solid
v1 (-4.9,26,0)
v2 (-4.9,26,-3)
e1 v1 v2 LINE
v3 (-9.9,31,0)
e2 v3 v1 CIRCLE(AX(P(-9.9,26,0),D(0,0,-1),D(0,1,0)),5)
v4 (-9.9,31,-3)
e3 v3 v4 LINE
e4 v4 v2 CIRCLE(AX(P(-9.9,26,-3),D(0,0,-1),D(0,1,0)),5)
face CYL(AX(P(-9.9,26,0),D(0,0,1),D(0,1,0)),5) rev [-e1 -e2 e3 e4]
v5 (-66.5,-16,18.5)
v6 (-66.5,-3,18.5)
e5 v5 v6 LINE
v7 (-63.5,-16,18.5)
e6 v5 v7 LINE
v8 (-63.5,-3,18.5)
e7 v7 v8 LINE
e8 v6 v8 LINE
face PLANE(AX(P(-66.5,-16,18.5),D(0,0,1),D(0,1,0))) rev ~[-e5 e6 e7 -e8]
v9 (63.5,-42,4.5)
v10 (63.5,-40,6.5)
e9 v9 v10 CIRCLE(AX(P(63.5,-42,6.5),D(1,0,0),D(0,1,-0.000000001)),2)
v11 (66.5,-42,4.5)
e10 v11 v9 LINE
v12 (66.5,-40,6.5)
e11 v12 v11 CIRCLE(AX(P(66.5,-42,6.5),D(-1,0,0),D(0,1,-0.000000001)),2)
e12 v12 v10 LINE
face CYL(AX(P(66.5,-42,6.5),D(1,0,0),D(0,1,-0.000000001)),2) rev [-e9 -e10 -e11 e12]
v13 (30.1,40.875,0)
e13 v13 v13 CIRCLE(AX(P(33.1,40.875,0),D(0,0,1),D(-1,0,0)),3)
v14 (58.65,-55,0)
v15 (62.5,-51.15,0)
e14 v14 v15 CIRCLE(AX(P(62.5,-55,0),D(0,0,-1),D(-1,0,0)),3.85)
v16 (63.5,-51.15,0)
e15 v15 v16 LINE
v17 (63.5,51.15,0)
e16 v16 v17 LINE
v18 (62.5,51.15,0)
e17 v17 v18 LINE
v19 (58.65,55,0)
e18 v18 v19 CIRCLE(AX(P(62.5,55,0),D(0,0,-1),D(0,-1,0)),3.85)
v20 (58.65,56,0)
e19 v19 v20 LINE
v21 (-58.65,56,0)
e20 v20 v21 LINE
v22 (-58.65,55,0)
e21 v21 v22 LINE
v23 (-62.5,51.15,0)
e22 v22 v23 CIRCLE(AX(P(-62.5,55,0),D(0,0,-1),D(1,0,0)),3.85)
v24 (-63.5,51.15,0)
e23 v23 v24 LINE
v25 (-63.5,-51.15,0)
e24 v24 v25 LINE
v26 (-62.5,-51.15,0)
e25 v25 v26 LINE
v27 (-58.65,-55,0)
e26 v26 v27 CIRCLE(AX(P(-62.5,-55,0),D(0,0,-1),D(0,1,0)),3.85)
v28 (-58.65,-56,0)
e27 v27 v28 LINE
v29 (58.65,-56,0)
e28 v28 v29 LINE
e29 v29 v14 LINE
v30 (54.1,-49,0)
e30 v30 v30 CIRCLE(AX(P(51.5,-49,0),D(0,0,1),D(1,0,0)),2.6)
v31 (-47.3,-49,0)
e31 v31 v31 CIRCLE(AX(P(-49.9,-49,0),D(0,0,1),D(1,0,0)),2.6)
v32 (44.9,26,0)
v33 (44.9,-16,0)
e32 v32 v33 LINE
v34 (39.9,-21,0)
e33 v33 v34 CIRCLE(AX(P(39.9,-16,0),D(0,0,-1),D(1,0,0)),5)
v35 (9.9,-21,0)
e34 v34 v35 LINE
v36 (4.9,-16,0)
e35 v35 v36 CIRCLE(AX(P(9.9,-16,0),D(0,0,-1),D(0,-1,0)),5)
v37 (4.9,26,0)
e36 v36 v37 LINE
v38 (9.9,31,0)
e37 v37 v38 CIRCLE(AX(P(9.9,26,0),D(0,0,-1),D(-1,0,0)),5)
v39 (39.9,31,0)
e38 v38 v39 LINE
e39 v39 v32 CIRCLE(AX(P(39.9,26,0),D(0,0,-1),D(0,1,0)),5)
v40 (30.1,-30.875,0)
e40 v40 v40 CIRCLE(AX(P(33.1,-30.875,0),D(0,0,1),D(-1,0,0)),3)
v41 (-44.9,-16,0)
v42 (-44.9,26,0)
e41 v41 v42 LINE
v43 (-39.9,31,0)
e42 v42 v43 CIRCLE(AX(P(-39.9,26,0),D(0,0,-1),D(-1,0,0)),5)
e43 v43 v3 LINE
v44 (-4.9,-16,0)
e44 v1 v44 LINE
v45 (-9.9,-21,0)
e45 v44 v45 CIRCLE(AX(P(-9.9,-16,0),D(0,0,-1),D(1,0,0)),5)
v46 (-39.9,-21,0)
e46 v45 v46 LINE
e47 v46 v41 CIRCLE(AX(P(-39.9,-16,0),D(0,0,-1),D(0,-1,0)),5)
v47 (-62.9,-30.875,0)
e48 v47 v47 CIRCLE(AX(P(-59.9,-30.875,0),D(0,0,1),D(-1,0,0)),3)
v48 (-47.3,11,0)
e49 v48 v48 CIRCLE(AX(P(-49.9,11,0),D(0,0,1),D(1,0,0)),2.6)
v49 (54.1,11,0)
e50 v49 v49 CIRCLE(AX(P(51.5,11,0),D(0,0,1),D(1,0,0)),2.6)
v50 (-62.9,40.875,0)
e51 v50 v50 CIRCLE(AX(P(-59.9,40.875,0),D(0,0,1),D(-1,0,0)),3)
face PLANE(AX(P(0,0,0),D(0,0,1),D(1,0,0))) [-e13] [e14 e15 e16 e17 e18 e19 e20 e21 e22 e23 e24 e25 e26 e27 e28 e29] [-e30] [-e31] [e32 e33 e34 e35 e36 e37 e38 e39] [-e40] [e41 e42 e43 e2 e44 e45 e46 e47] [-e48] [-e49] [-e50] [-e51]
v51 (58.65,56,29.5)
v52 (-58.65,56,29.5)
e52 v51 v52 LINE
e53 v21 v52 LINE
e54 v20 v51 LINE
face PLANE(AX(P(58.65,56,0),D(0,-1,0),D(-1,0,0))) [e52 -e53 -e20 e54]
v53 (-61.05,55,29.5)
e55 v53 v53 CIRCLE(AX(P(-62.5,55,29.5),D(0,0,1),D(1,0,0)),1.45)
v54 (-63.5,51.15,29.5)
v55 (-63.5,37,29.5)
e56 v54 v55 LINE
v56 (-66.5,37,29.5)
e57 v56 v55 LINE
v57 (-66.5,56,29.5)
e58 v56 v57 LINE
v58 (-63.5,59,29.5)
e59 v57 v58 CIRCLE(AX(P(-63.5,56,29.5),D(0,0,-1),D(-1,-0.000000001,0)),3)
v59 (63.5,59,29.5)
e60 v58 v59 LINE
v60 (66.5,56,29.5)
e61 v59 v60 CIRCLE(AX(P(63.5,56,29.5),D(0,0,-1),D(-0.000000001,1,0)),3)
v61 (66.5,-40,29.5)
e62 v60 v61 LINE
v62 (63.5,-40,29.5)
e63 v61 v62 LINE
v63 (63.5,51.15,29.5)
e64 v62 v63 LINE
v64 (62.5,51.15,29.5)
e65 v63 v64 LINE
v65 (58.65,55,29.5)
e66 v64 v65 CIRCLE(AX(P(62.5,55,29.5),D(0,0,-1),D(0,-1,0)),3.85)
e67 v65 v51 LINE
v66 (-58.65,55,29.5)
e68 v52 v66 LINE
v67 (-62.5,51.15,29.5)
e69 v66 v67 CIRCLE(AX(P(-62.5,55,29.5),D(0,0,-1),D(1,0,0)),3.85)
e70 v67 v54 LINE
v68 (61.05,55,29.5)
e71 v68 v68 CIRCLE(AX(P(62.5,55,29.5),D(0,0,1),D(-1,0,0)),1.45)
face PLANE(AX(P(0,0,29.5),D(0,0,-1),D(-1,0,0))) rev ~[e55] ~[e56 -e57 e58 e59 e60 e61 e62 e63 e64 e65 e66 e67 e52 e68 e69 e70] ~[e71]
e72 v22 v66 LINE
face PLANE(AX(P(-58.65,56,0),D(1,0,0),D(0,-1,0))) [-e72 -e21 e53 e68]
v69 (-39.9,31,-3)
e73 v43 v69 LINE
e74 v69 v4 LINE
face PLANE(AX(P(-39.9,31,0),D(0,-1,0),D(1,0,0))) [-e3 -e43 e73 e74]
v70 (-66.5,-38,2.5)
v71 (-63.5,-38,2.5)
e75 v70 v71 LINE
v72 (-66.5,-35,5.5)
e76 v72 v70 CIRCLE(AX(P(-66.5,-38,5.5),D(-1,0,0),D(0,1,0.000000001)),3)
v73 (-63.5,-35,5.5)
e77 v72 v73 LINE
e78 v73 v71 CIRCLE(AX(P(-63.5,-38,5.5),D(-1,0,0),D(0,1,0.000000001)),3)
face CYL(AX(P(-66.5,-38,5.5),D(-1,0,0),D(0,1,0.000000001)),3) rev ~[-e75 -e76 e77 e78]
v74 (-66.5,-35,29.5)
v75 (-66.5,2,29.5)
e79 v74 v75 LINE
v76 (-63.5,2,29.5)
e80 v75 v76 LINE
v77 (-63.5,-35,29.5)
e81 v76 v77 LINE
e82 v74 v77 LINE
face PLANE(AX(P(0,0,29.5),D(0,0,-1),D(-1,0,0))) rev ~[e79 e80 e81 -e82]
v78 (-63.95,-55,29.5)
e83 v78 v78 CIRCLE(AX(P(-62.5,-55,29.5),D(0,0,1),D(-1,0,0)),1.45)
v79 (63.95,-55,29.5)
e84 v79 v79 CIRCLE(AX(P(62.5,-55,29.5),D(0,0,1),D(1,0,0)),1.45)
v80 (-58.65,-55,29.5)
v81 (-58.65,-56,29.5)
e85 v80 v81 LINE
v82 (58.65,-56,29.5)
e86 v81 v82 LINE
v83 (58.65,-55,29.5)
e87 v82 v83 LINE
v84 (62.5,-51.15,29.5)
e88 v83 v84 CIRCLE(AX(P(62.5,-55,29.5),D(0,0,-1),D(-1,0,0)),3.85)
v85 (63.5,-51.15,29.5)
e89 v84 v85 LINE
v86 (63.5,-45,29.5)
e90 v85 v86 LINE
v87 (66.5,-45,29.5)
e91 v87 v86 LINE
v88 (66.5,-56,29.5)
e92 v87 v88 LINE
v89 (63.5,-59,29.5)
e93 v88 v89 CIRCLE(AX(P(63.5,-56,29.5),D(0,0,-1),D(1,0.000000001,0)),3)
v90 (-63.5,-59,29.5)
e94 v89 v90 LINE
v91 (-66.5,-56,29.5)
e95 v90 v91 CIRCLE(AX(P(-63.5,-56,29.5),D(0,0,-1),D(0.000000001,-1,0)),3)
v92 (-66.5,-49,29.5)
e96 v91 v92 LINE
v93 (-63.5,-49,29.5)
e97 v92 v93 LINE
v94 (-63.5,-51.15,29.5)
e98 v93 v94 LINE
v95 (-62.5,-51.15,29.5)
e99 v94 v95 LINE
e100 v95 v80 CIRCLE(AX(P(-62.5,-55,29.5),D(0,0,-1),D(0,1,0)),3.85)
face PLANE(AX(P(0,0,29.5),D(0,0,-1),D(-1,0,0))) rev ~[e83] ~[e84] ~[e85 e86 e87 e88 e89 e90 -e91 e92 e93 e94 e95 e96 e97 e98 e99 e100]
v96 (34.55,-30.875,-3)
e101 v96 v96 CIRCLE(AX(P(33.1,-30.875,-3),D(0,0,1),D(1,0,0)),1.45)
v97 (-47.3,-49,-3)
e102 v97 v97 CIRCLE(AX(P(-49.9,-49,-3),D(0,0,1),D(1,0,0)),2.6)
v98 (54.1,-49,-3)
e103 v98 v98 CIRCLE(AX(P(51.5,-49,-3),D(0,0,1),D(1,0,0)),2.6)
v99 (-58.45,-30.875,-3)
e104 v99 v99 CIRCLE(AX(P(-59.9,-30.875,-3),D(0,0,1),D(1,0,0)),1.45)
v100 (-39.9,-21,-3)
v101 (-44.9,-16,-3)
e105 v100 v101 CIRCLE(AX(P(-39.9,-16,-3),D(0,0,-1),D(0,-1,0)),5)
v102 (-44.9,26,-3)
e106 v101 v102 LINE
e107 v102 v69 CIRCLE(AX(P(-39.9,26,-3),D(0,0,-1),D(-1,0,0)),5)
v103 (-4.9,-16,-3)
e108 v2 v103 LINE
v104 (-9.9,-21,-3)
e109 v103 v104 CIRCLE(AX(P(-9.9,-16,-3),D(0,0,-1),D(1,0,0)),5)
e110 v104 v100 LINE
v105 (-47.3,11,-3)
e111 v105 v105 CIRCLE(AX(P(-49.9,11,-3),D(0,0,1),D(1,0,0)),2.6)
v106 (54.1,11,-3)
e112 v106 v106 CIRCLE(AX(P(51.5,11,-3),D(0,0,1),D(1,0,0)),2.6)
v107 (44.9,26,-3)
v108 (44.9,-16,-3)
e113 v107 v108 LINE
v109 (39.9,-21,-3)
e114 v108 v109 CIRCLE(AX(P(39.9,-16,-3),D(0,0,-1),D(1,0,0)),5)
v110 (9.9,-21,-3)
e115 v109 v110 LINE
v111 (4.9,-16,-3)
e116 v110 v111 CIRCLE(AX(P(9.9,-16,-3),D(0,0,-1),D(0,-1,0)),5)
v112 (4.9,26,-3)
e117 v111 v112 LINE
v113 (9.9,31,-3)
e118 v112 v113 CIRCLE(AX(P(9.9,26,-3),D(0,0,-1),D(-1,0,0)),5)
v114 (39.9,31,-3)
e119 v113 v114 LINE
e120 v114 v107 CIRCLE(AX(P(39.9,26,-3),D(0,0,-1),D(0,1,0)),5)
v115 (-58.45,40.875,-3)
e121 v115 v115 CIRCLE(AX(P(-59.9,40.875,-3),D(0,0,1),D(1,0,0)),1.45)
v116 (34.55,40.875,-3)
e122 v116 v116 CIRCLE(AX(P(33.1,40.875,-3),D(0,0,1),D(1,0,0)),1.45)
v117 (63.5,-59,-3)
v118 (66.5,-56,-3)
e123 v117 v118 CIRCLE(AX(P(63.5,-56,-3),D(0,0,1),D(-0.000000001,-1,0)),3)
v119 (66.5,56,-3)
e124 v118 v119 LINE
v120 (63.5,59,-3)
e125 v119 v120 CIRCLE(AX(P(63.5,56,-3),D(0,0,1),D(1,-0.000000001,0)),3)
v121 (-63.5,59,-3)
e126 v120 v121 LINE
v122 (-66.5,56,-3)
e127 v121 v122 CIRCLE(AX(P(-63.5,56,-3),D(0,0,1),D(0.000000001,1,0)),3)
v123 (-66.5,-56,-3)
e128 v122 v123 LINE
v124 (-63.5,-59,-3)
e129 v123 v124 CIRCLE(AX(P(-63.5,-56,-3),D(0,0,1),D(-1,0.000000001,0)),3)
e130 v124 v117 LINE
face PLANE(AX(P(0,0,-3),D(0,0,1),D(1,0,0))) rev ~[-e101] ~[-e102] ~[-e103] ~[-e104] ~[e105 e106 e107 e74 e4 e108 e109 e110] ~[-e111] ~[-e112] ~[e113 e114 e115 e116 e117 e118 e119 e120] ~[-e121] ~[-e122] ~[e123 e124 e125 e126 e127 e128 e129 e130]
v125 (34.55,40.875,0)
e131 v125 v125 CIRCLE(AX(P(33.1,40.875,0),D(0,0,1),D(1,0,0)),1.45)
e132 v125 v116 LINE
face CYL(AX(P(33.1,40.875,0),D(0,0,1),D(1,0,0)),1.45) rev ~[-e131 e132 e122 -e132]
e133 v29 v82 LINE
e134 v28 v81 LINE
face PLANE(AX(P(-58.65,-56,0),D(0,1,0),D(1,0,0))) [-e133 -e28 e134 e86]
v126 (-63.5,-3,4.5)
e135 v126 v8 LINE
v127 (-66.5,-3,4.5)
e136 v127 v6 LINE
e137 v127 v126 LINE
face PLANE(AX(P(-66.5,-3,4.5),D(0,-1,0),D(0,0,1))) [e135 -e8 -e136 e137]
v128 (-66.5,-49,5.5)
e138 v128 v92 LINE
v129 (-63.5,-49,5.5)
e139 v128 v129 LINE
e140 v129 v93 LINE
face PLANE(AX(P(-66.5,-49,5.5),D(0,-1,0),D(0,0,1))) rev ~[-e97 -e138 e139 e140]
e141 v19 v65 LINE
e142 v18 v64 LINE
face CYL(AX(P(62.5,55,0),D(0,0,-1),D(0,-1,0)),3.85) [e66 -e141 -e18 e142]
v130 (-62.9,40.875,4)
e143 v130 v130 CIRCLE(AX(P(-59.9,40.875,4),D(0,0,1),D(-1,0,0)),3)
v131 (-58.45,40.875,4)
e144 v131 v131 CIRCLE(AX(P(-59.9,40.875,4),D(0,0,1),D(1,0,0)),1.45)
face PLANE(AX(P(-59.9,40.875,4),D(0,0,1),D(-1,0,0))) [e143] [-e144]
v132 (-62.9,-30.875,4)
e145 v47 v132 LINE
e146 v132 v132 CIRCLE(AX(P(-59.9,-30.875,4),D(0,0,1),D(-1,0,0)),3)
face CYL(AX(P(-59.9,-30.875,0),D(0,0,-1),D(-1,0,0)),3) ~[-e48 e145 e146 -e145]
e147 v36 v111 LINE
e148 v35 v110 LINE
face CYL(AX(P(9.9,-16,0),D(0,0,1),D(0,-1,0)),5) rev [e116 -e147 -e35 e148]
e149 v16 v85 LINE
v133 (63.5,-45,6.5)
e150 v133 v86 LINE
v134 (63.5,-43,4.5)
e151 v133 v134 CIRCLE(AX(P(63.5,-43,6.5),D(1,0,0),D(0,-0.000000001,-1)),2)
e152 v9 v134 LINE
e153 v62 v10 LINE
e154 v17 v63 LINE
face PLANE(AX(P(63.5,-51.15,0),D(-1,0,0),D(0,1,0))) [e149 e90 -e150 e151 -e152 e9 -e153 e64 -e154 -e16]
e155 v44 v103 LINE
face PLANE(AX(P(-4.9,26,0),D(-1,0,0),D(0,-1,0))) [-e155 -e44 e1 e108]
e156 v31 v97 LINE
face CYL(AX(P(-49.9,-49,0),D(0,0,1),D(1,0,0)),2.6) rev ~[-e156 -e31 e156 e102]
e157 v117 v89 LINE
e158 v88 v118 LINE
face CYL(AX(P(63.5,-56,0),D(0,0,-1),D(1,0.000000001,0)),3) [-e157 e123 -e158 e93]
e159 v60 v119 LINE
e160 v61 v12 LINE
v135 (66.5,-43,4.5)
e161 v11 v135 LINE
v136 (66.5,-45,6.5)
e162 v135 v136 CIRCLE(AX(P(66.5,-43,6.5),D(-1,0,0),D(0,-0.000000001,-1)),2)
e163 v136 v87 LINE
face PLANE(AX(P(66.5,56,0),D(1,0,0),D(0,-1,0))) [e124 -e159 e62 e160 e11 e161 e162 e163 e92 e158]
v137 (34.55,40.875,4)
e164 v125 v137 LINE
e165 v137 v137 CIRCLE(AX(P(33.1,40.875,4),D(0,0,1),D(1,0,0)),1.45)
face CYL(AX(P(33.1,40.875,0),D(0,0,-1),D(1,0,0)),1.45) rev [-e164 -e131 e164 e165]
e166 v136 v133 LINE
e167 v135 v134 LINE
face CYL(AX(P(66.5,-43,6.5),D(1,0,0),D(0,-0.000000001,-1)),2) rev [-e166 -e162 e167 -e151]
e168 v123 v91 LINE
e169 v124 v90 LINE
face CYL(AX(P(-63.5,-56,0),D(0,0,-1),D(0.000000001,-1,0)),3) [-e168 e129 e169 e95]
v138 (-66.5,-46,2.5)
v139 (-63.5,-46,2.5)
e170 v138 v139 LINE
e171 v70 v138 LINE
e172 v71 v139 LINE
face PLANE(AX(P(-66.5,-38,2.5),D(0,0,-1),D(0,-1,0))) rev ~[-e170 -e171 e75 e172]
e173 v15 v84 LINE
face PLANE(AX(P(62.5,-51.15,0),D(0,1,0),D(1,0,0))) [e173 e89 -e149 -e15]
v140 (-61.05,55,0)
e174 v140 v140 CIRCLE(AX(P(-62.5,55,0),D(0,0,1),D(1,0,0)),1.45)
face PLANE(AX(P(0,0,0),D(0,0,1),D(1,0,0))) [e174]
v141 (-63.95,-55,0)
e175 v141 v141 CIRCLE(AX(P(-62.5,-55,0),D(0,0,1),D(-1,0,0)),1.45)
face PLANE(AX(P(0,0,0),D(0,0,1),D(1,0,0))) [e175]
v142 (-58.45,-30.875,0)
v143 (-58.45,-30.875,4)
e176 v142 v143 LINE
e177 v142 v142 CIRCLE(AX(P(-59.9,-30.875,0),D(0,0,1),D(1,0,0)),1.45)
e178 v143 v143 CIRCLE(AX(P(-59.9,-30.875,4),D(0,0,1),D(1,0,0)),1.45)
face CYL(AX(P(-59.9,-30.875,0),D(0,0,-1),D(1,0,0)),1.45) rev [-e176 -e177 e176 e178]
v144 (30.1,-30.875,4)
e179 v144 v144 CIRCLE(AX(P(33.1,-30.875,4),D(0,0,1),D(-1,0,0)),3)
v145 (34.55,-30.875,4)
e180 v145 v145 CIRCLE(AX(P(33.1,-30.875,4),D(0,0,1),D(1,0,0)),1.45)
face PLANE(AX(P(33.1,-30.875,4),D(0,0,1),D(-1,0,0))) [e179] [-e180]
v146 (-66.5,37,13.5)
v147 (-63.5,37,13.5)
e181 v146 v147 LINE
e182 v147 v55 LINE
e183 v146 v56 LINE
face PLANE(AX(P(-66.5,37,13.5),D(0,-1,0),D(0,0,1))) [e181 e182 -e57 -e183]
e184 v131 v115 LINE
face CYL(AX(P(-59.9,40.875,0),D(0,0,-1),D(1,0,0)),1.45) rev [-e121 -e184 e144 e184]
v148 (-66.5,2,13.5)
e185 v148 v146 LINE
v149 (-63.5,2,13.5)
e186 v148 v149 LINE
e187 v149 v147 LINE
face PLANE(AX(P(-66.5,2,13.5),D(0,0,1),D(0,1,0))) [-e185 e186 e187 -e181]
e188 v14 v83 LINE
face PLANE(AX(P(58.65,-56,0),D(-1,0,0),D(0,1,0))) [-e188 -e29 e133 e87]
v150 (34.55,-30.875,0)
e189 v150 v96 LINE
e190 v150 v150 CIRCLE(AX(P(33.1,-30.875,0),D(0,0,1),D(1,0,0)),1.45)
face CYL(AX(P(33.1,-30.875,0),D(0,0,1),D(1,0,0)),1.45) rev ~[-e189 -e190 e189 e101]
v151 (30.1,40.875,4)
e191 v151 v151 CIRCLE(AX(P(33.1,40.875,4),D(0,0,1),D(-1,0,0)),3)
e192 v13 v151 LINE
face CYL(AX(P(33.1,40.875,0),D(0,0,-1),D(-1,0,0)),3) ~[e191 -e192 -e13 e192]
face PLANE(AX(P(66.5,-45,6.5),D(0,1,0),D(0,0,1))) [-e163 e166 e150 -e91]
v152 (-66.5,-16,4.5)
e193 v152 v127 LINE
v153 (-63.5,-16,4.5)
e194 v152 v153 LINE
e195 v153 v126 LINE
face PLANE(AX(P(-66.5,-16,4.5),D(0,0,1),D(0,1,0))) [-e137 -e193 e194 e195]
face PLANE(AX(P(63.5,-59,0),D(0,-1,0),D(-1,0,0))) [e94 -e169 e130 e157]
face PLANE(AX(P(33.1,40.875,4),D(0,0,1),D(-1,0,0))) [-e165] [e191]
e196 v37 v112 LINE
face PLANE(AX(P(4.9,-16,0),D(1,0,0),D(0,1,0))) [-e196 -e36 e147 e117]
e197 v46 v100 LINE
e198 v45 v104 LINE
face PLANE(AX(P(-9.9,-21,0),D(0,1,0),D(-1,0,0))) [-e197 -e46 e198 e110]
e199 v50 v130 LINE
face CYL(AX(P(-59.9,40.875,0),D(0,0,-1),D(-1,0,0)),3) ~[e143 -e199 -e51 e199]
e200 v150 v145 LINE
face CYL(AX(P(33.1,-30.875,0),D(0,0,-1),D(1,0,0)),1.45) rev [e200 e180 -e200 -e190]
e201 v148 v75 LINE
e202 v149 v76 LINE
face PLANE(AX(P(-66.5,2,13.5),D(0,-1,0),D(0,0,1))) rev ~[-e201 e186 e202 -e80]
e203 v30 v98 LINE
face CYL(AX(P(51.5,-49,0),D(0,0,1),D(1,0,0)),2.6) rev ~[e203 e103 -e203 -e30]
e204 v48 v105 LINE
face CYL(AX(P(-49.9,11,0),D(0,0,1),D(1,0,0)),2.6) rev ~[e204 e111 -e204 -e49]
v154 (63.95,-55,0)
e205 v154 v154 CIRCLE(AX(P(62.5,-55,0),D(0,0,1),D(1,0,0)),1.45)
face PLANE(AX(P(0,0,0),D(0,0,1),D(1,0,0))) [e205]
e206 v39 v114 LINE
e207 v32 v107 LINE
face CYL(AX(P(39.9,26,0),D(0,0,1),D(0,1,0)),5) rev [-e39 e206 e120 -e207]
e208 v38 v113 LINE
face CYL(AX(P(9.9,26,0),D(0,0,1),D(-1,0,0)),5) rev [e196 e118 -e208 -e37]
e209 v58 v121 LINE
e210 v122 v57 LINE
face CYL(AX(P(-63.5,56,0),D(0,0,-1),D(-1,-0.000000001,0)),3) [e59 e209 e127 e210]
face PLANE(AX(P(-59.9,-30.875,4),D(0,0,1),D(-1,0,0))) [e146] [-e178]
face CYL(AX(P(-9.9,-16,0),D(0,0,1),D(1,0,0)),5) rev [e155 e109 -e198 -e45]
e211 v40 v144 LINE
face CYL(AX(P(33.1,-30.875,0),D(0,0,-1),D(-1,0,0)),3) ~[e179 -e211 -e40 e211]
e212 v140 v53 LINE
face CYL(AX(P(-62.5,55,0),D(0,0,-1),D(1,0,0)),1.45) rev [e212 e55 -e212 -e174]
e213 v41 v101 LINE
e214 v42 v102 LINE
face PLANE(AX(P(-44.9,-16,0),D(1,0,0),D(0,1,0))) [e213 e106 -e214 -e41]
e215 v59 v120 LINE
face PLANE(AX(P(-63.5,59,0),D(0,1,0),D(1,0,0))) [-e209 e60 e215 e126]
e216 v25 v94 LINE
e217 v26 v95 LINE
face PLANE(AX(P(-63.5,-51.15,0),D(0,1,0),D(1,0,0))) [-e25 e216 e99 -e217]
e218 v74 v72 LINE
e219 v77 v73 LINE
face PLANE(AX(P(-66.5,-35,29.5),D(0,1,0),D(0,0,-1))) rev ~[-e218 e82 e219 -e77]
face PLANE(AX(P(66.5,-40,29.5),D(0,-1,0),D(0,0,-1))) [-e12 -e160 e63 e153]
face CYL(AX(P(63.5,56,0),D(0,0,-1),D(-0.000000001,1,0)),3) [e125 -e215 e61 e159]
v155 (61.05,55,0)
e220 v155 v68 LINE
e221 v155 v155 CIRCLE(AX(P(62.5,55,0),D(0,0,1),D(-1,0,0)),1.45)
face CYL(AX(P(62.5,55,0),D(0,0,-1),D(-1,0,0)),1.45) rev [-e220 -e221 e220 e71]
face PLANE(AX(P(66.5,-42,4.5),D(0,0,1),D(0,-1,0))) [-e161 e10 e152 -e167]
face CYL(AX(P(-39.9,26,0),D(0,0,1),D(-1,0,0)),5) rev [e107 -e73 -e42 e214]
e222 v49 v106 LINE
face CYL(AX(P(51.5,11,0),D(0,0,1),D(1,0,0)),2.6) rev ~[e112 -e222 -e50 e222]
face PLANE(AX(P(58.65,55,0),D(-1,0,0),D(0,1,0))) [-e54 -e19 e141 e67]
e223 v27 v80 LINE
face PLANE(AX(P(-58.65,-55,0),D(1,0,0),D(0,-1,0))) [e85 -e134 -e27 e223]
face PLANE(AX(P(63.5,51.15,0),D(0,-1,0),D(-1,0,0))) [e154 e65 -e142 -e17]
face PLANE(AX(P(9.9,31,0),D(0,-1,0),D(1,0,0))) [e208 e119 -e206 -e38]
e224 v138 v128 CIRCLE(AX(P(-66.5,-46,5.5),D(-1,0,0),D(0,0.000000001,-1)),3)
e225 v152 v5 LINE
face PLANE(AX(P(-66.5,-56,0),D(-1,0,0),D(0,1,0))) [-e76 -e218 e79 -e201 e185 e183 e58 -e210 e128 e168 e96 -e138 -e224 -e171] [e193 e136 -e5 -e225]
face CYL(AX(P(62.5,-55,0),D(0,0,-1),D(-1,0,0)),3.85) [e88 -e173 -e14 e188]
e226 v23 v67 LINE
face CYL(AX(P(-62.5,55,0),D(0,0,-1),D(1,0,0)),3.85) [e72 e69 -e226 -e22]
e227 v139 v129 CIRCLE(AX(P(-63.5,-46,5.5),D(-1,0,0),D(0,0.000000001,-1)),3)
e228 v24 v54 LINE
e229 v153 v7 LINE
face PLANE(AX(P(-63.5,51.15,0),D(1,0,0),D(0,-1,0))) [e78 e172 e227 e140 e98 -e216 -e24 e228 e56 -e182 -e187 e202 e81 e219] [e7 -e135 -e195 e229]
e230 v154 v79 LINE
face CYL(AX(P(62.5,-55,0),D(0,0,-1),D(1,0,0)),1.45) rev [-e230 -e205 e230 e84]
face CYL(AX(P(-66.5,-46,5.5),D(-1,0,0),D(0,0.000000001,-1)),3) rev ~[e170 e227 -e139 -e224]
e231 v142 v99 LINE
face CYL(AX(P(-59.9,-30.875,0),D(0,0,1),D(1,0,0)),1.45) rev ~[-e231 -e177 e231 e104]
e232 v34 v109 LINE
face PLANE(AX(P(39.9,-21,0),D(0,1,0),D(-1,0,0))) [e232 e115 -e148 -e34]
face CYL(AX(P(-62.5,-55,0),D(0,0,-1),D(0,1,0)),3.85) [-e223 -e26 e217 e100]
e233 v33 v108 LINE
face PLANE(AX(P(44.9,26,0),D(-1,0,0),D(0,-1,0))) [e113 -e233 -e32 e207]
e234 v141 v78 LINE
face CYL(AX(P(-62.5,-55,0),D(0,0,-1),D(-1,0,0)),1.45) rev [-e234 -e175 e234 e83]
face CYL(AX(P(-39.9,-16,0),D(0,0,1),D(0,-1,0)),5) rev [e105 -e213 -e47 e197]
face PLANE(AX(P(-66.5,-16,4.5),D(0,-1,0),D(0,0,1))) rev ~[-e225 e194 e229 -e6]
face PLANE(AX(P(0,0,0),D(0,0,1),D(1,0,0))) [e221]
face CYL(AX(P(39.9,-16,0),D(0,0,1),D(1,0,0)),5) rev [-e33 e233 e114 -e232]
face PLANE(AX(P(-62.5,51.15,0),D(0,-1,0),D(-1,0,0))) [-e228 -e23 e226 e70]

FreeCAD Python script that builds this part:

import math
import FreeCAD as App
import Part
import Sketcher
Q = App.Units.Quantity

doc = App.newDocument("Part")
body = doc.addObject("PartDesign::Body", "Body")

# Sketch on XY plane
sketch1 = body.newObject("Sketcher::SketchObject", "Sketch")
sketch1.AttachmentSupport = (doc.getObject("XY_Plane"), [""])
sketch1.MapMode = "FlatFace"
sketch1.addGeometry([
    Part.LineSegment(App.Vector(-63.5, -59, 0), App.Vector(63.5, -59, 0)),  # 0
    Part.ArcOfCircle(Part.Circle(App.Vector(63.5, -56, 0), App.Vector(0, 0, 1), 3), math.radians(-90), math.radians(0)),  # 1
    Part.LineSegment(App.Vector(66.5, -56, 0), App.Vector(66.5, 56, 0)),  # 2
    Part.ArcOfCircle(Part.Circle(App.Vector(63.5, 56, 0), App.Vector(0, 0, 1), 3), math.radians(0), math.radians(90)),  # 3
    Part.LineSegment(App.Vector(63.5, 59, 0), App.Vector(-63.5, 59, 0)),  # 4
    Part.ArcOfCircle(Part.Circle(App.Vector(-63.5, 56, 0), App.Vector(0, 0, 1), 3), math.radians(90), math.radians(180)),  # 5
    Part.LineSegment(App.Vector(-66.5, 56, 0), App.Vector(-66.5, -56, 0)),  # 6
    Part.ArcOfCircle(Part.Circle(App.Vector(-63.5, -56, 0), App.Vector(0, 0, 1), 3), math.radians(180), math.radians(270)),  # 7
    Part.Circle(App.Vector(-49.9, -49, 0), App.Vector(0, 0, 1), 2.6),  # 8
    Part.Circle(App.Vector(-59.9, -30.875, 0), App.Vector(0, 0, 1), 1.45),  # 9
    Part.Circle(App.Vector(51.5, -49, 0), App.Vector(0, 0, 1), 2.6),  # 10
    Part.Circle(App.Vector(33.1, -30.875, 0), App.Vector(0, 0, 1), 1.45),  # 11
    Part.Circle(App.Vector(-49.9, 11, 0), App.Vector(0, 0, 1), 2.6),  # 12
    Part.ArcOfCircle(Part.Circle(App.Vector(-39.9, 26, 0), App.Vector(0, 0, 1), 5), math.radians(90), math.radians(180)),  # 13
    Part.LineSegment(App.Vector(-39.9, 31, 0), App.Vector(-9.9, 31, 0)),  # 14
    Part.ArcOfCircle(Part.Circle(App.Vector(-9.9, 26, 0), App.Vector(0, 0, 1), 5), math.radians(0), math.radians(90)),  # 15
    Part.LineSegment(App.Vector(-4.9, 26, 0), App.Vector(-4.9, -16, 0)),  # 16
    Part.ArcOfCircle(Part.Circle(App.Vector(-9.9, -16, 0), App.Vector(0, 0, 1), 5), math.radians(-90), math.radians(0)),  # 17
    Part.LineSegment(App.Vector(-9.9, -21, 0), App.Vector(-39.9, -21, 0)),  # 18
    Part.ArcOfCircle(Part.Circle(App.Vector(-39.9, -16, 0), App.Vector(0, 0, 1), 5), math.radians(180), math.radians(270)),  # 19
    Part.LineSegment(App.Vector(-44.9, -16, 0), App.Vector(-44.9, 26, 0)),  # 20
    Part.Circle(App.Vector(-59.9, 40.875, 0), App.Vector(0, 0, 1), 1.45),  # 21
    Part.ArcOfCircle(Part.Circle(App.Vector(39.9, 26, 0), App.Vector(0, 0, 1), 5), math.radians(0), math.radians(90)),  # 22
    Part.LineSegment(App.Vector(44.9, 26, 0), App.Vector(44.9, -16, 0)),  # 23
    Part.ArcOfCircle(Part.Circle(App.Vector(39.9, -16, 0), App.Vector(0, 0, 1), 5), math.radians(-90), math.radians(0)),  # 24
    Part.LineSegment(App.Vector(39.9, -21, 0), App.Vector(9.9, -21, 0)),  # 25
    Part.ArcOfCircle(Part.Circle(App.Vector(9.9, -16, 0), App.Vector(0, 0, 1), 5), math.radians(180), math.radians(270)),  # 26
    Part.LineSegment(App.Vector(4.9, -16, 0), App.Vector(4.9, 26, 0)),  # 27
    Part.ArcOfCircle(Part.Circle(App.Vector(9.9, 26, 0), App.Vector(0, 0, 1), 5), math.radians(90), math.radians(180)),  # 28
    Part.LineSegment(App.Vector(9.9, 31, 0), App.Vector(39.9, 31, 0)),  # 29
    Part.Circle(App.Vector(51.5, 11, 0), App.Vector(0, 0, 1), 2.6),  # 30
    Part.Circle(App.Vector(33.1, 40.875, 0), App.Vector(0, 0, 1), 1.45),  # 31
], False)
sketch1.addConstraint([
    Sketcher.Constraint("Tangent", 0, 2, 1, 1),
    Sketcher.Constraint("Tangent", 1, 2, 2, 1),
    Sketcher.Constraint("Tangent", 2, 2, 3, 1),
    Sketcher.Constraint("Tangent", 3, 2, 4, 1),
    Sketcher.Constraint("Tangent", 4, 2, 5, 1),
    Sketcher.Constraint("Tangent", 5, 2, 6, 1),
    Sketcher.Constraint("Tangent", 6, 2, 7, 1),
    Sketcher.Constraint("Tangent", 7, 2, 0, 1),
    Sketcher.Constraint("Tangent", 13, 1, 14, 1),
    Sketcher.Constraint("Tangent", 14, 2, 15, 2),
    Sketcher.Constraint("Tangent", 15, 1, 16, 1),
    Sketcher.Constraint("Tangent", 16, 2, 17, 2),
    Sketcher.Constraint("Tangent", 17, 1, 18, 1),
    Sketcher.Constraint("Tangent", 18, 2, 19, 2),
    Sketcher.Constraint("Tangent", 19, 1, 20, 1),
    Sketcher.Constraint("Tangent", 20, 2, 13, 2),
    Sketcher.Constraint("Tangent", 22, 1, 23, 1),
    Sketcher.Constraint("Tangent", 23, 2, 24, 2),
    Sketcher.Constraint("Tangent", 24, 1, 25, 1),
    Sketcher.Constraint("Tangent", 25, 2, 26, 2),
    Sketcher.Constraint("Tangent", 26, 1, 27, 1),
    Sketcher.Constraint("Tangent", 27, 2, 28, 2),
    Sketcher.Constraint("Tangent", 28, 1, 29, 1),
    Sketcher.Constraint("Tangent", 29, 2, 22, 2),
    Sketcher.Constraint("Horizontal", 0),
    Sketcher.Constraint("Vertical", 2),
    Sketcher.Constraint("Horizontal", 4),
    Sketcher.Constraint("Vertical", 6),
    Sketcher.Constraint("Horizontal", 14),
    Sketcher.Constraint("Vertical", 16),
    Sketcher.Constraint("Horizontal", 18),
    Sketcher.Constraint("Vertical", 20),
    Sketcher.Constraint("Vertical", 23),
    Sketcher.Constraint("Horizontal", 25),
    Sketcher.Constraint("Vertical", 27),
    Sketcher.Constraint("Horizontal", 29),
    Sketcher.Constraint("Equal", 1, 3),
    Sketcher.Constraint("Equal", 3, 5),
    Sketcher.Constraint("Equal", 5, 7),
    Sketcher.Constraint("Equal", 8, 10),
    Sketcher.Constraint("Equal", 9, 11),
    Sketcher.Constraint("Equal", 10, 12),
    Sketcher.Constraint("Equal", 13, 15),
    Sketcher.Constraint("Equal", 15, 17),
    Sketcher.Constraint("Equal", 17, 19),
    Sketcher.Constraint("Equal", 11, 21),
    Sketcher.Constraint("Equal", 19, 22),
    Sketcher.Constraint("Equal", 22, 24),
    Sketcher.Constraint("Equal", 24, 26),
    Sketcher.Constraint("Equal", 26, 28),
    Sketcher.Constraint("Equal", 12, 30),
    Sketcher.Constraint("Equal", 21, 31),
    Sketcher.Constraint("Symmetric", 1, 3, 5, 3, -1, 1),
    Sketcher.Constraint("Symmetric", 13, 3, 22, 3, -2),
    Sketcher.Constraint("Symmetric", 17, 3, 26, 3, -2),
    Sketcher.Constraint("Horizontal", 8, 3, 10, 3),
    Sketcher.Constraint("Horizontal", 9, 3, 11, 3),
    Sketcher.Constraint("Horizontal", 12, 3, 30, 3),
    Sketcher.Constraint("Horizontal", 21, 3, 31, 3),
    Sketcher.Constraint("Vertical", 8, 3, 12, 3),
    Sketcher.Constraint("Vertical", 9, 3, 21, 3),
    Sketcher.Constraint("Vertical", 10, 3, 30, 3),
    Sketcher.Constraint("Vertical", 11, 3, 31, 3),
    Sketcher.Constraint("Radius", 1, Q("3 mm")),
    Sketcher.Constraint("Radius", 13, Q("5 mm")),
    Sketcher.Constraint("Diameter", 8, Q("5.2 mm")),
    Sketcher.Constraint("Diameter", 9, Q("2.9 mm")),
    Sketcher.Constraint("DistanceX", 0, 1, 0, 2, Q("127 mm")),
    Sketcher.Constraint("DistanceX", 14, 1, 14, 2, Q("30 mm")),
    Sketcher.Constraint("DistanceY", 2, 1, 2, 2, Q("112 mm")),
    Sketcher.Constraint("DistanceY", 16, 2, 16, 1, Q("42 mm")),
    Sketcher.Constraint("DistanceY", 8, 3, -1, 1, Q("49 mm")),
    Sketcher.Constraint("DistanceY", -1, 1, 12, 3, Q("11 mm")),
    Sketcher.Constraint("DistanceY", -1, 1, 13, 3, Q("26 mm")),
    Sketcher.Constraint("DistanceX", 9, 3, 8, 3, Q("10 mm")),
    Sketcher.Constraint("DistanceX", 10, 3, 1, 3, Q("12 mm")),
    Sketcher.Constraint("DistanceX", 8, 3, 11, 3, Q("83 mm")),
    Sketcher.Constraint("DistanceX", 12, 3, 13, 3, Q("10 mm")),
    Sketcher.Constraint("DistanceX", 8, 3, -1, 1, Q("49.9 mm")),
    Sketcher.Constraint("DistanceY", 9, 3, -1, 1, Q("30.875 mm")),
    Sketcher.Constraint("DistanceY", -1, 1, 21, 3, Q("40.875 mm")),
])
pad1 = body.newObject("PartDesign::Pad", "Pad")
pad1.Profile = sketch1
pad1.Length = 3
pad1.Reversed = True

# Sketch on XY plane
sketch2 = body.newObject("Sketcher::SketchObject", "Sketch001")
sketch2.AttachmentSupport = (doc.getObject("XY_Plane"), [""])
sketch2.MapMode = "FlatFace"
sketch2.addGeometry([
    Part.ArcOfCircle(Part.Circle(App.Vector(-63.5, 56, 0), App.Vector(0, 0, 1), 3), math.radians(90), math.radians(180)),  # 0
    Part.LineSegment(App.Vector(-66.5, 56, 0), App.Vector(-66.5, -56, 0)),  # 1
    Part.ArcOfCircle(Part.Circle(App.Vector(-63.5, -56, 0), App.Vector(0, 0, 1), 3), math.radians(180), math.radians(270)),  # 2
    Part.LineSegment(App.Vector(-63.5, -59, 0), App.Vector(63.5, -59, 0)),  # 3
    Part.ArcOfCircle(Part.Circle(App.Vector(63.5, -56, 0), App.Vector(0, 0, 1), 3), math.radians(-90), math.radians(0)),  # 4
    Part.LineSegment(App.Vector(66.5, -56, 0), App.Vector(66.5, 56, 0)),  # 5
    Part.ArcOfCircle(Part.Circle(App.Vector(63.5, 56, 0), App.Vector(0, 0, 1), 3), math.radians(0), math.radians(90)),  # 6
    Part.LineSegment(App.Vector(63.5, 59, 0), App.Vector(-63.5, 59, 0)),  # 7
    Part.Circle(App.Vector(62.5, -55, 0), App.Vector(0, 0, 1), 1.45),  # 8
    Part.Circle(App.Vector(-62.5, -55, 0), App.Vector(0, 0, 1), 1.45),  # 9
    Part.LineSegment(App.Vector(-62.5, -51.15, 0), App.Vector(-63.5, -51.15, 0)),  # 10
    Part.LineSegment(App.Vector(-63.5, -51.15, 0), App.Vector(-63.5, 51.15, 0)),  # 11
    Part.LineSegment(App.Vector(-63.5, 51.15, 0), App.Vector(-62.5, 51.15, 0)),  # 12
    Part.ArcOfCircle(Part.Circle(App.Vector(-62.5, 55, 0), App.Vector(0, 0, 1), 3.85), math.radians(-90), math.radians(0)),  # 13
    Part.LineSegment(App.Vector(-58.65, 55, 0), App.Vector(-58.65, 56, 0)),  # 14
    Part.LineSegment(App.Vector(-58.65, 56, 0), App.Vector(58.65, 56, 0)),  # 15
    Part.LineSegment(App.Vector(58.65, 56, 0), App.Vector(58.65, 55, 0)),  # 16
    Part.ArcOfCircle(Part.Circle(App.Vector(62.5, 55, 0), App.Vector(0, 0, 1), 3.85), math.radians(180), math.radians(270)),  # 17
    Part.LineSegment(App.Vector(62.5, 51.15, 0), App.Vector(63.5, 51.15, 0)),  # 18
    Part.LineSegment(App.Vector(63.5, 51.15, 0), App.Vector(63.5, -51.15, 0)),  # 19
    Part.LineSegment(App.Vector(63.5, -51.15, 0), App.Vector(62.5, -51.15, 0)),  # 20
    Part.ArcOfCircle(Part.Circle(App.Vector(62.5, -55, 0), App.Vector(0, 0, 1), 3.85), math.radians(90), math.radians(180)),  # 21
    Part.LineSegment(App.Vector(58.65, -55, 0), App.Vector(58.65, -56, 0)),  # 22
    Part.LineSegment(App.Vector(58.65, -56, 0), App.Vector(-58.65, -56, 0)),  # 23
    Part.LineSegment(App.Vector(-58.65, -56, 0), App.Vector(-58.65, -55, 0)),  # 24
    Part.ArcOfCircle(Part.Circle(App.Vector(-62.5, -55, 0), App.Vector(0, 0, 1), 3.85), math.radians(0), math.radians(90)),  # 25
    Part.Circle(App.Vector(62.5, 55, 0), App.Vector(0, 0, 1), 1.45),  # 26
    Part.Circle(App.Vector(-62.5, 55, 0), App.Vector(0, 0, 1), 1.45),  # 27
], False)
sketch2.addConstraint([
    Sketcher.Constraint("Tangent", 0, 2, 1, 1),
    Sketcher.Constraint("Tangent", 1, 2, 2, 1),
    Sketcher.Constraint("Tangent", 2, 2, 3, 1),
    Sketcher.Constraint("Tangent", 3, 2, 4, 1),
    Sketcher.Constraint("Tangent", 4, 2, 5, 1),
    Sketcher.Constraint("Tangent", 5, 2, 6, 1),
    Sketcher.Constraint("Tangent", 6, 2, 7, 1),
    Sketcher.Constraint("Tangent", 7, 2, 0, 1),
    Sketcher.Constraint("Coincident", 10, 2, 11, 1),
    Sketcher.Constraint("Coincident", 11, 2, 12, 1),
    Sketcher.Constraint("Tangent", 12, 2, 13, 1),
    Sketcher.Constraint("Tangent", 13, 2, 14, 1),
    Sketcher.Constraint("Coincident", 14, 2, 15, 1),
    Sketcher.Constraint("Coincident", 15, 2, 16, 1),
    Sketcher.Constraint("Tangent", 16, 2, 17, 1),
    Sketcher.Constraint("Tangent", 17, 2, 18, 1),
    Sketcher.Constraint("Coincident", 18, 2, 19, 1),
    Sketcher.Constraint("Coincident", 19, 2, 20, 1),
    Sketcher.Constraint("Tangent", 20, 2, 21, 1),
    Sketcher.Constraint("Tangent", 21, 2, 22, 1),
    Sketcher.Constraint("Coincident", 22, 2, 23, 1),
    Sketcher.Constraint("Coincident", 23, 2, 24, 1),
    Sketcher.Constraint("Tangent", 24, 2, 25, 1),
    Sketcher.Constraint("Tangent", 25, 2, 10, 1),
    Sketcher.Constraint("Vertical", 1),
    Sketcher.Constraint("Horizontal", 3),
    Sketcher.Constraint("Vertical", 5),
    Sketcher.Constraint("Horizontal", 7),
    Sketcher.Constraint("Horizontal", 10),
    Sketcher.Constraint("Vertical", 11),
    Sketcher.Constraint("Horizontal", 12),
    Sketcher.Constraint("Vertical", 14),
    Sketcher.Constraint("Horizontal", 15),
    Sketcher.Constraint("Vertical", 16),
    Sketcher.Constraint("Horizontal", 18),
    Sketcher.Constraint("Vertical", 19),
    Sketcher.Constraint("Horizontal", 20),
    Sketcher.Constraint("Vertical", 22),
    Sketcher.Constraint("Horizontal", 23),
    Sketcher.Constraint("Vertical", 24),
    Sketcher.Constraint("Coincident", 21, 3, 8, 3),
    Sketcher.Constraint("Coincident", 25, 3, 9, 3),
    Sketcher.Constraint("Coincident", 26, 3, 17, 3),
    Sketcher.Constraint("Coincident", 27, 3, 13, 3),
    Sketcher.Constraint("Equal", 0, 2),
    Sketcher.Constraint("Equal", 2, 4),
    Sketcher.Constraint("Equal", 4, 6),
    Sketcher.Constraint("Equal", 8, 9),
    Sketcher.Constraint("Equal", 13, 17),
    Sketcher.Constraint("Equal", 17, 21),
    Sketcher.Constraint("Equal", 21, 25),
    Sketcher.Constraint("Equal", 9, 26),
    Sketcher.Constraint("Equal", 26, 27),
    Sketcher.Constraint("Symmetric", 0, 3, 4, 3, -1, 1),
    Sketcher.Constraint("Symmetric", 8, 3, 13, 3, -1, 1),
    Sketcher.Constraint("Symmetric", 9, 3, 17, 3, -1, 1),
    Sketcher.Constraint("Symmetric", 8, 3, 9, 3, -2),
    Sketcher.Constraint("Horizontal", 5, 2, 14, 2),
    Sketcher.Constraint("Horizontal", 4, 2, 22, 2),
    Sketcher.Constraint("Vertical", 7, 2, 10, 2),
    Sketcher.Constraint("Vertical", 6, 2, 18, 2),
    Sketcher.Constraint("Equal", 20, 14),
    Sketcher.Constraint("Radius", 0, Q("3 mm")),
    Sketcher.Constraint("Diameter", 8, Q("2.9 mm")),
    Sketcher.Constraint("DistanceX", 3, 1, 3, 2, Q("127 mm")),
    Sketcher.Constraint("DistanceX", 10, 2, 10, 1, Q("1 mm")),
    Sketcher.Constraint("DistanceY", 1, 2, 1, 1, Q("112 mm")),
    Sketcher.Constraint("Radius", 13, Q("3.85 mm")),
])
pad2 = body.newObject("PartDesign::Pad", "Pad001")
pad2.Profile = sketch2
pad2.Length = 29.5

# Sketch on XY plane
sketch3 = body.newObject("Sketcher::SketchObject", "Sketch002")
sketch3.AttachmentSupport = (doc.getObject("XY_Plane"), [""])
sketch3.MapMode = "FlatFace"
sketch3.addGeometry([
    Part.Circle(App.Vector(-59.9, 40.875, 0), App.Vector(0, 0, 1), 3),  # 0
    Part.Circle(App.Vector(-59.9, 40.875, 0), App.Vector(0, 0, 1), 1.45),  # 1
    Part.Circle(App.Vector(33.1, 40.875, 0), App.Vector(0, 0, 1), 3),  # 2
    Part.Circle(App.Vector(33.1, 40.875, 0), App.Vector(0, 0, 1), 1.45),  # 3
    Part.Circle(App.Vector(33.1, -30.875, 0), App.Vector(0, 0, 1), 3),  # 4
    Part.Circle(App.Vector(33.1, -30.875, 0), App.Vector(0, 0, 1), 1.45),  # 5
    Part.Circle(App.Vector(-59.9, -30.875, 0), App.Vector(0, 0, 1), 3),  # 6
    Part.Circle(App.Vector(-59.9, -30.875, 0), App.Vector(0, 0, 1), 1.45),  # 7
], False)
sketch3.addConstraint([
    Sketcher.Constraint("Coincident", 1, 3, 0, 3),
    Sketcher.Constraint("Coincident", 3, 3, 2, 3),
    Sketcher.Constraint("Coincident", 5, 3, 4, 3),
    Sketcher.Constraint("Coincident", 7, 3, 6, 3),
    Sketcher.Constraint("Equal", 0, 2),
    Sketcher.Constraint("Equal", 1, 3),
    Sketcher.Constraint("Equal", 2, 4),
    Sketcher.Constraint("Equal", 3, 5),
    Sketcher.Constraint("Equal", 4, 6),
    Sketcher.Constraint("Equal", 5, 7),
    Sketcher.Constraint("Horizontal", 1, 3, 2, 3),
    Sketcher.Constraint("Horizontal", 5, 3, 6, 3),
    Sketcher.Constraint("Vertical", 3, 3, 4, 3),
    Sketcher.Constraint("Vertical", 1, 3, 6, 3),
    Sketcher.Constraint("Diameter", 0, Q("6 mm")),
    Sketcher.Constraint("Diameter", 1, Q("2.9 mm")),
    Sketcher.Constraint("DistanceX", 0, 3, 2, 3, Q("93 mm")),
    Sketcher.Constraint("DistanceX", 0, 3, -1, 1, Q("59.9 mm")),
    Sketcher.Constraint("DistanceY", 4, 3, 2, 3, Q("71.75 mm")),
    Sketcher.Constraint("DistanceY", -1, 1, 0, 3, Q("40.875 mm")),
])
pad3 = body.newObject("PartDesign::Pad", "Pad002")
pad3.Profile = sketch3
pad3.Length = 4

# Sketch on YZ plane
sketch4 = body.newObject("Sketcher::SketchObject", "Sketch003")
sketch4.AttachmentSupport = (doc.getObject("YZ_Plane"), [""])
sketch4.MapMode = "FlatFace"
sketch4.AttachmentOffset = App.Placement(App.Vector(0, 0, -66.5), App.Rotation())
sketch4.addGeometry([
    Part.LineSegment(App.Vector(-3, 4.5, 0), App.Vector(-16, 4.5, 0)),  # 0
    Part.LineSegment(App.Vector(-16, 4.5, 0), App.Vector(-16, 18.5, 0)),  # 1
    Part.LineSegment(App.Vector(-16, 18.5, 0), App.Vector(-3, 18.5, 0)),  # 2
    Part.LineSegment(App.Vector(-3, 18.5, 0), App.Vector(-3, 4.5, 0)),  # 3
    Part.LineSegment(App.Vector(-35, 29.5, 0), App.Vector(-35, 5.5, 0)),  # 4
    Part.ArcOfCircle(Part.Circle(App.Vector(-38, 5.5, 0), App.Vector(0, 0, 1), 3), math.radians(-90), math.radians(0)),  # 5
    Part.LineSegment(App.Vector(-38, 2.5, 0), App.Vector(-46, 2.5, 0)),  # 6
    Part.ArcOfCircle(Part.Circle(App.Vector(-46, 5.5, 0), App.Vector(0, 0, 1), 3), math.radians(180), math.radians(270)),  # 7
    Part.LineSegment(App.Vector(-49, 5.5, 0), App.Vector(-49, 29.5, 0)),  # 8
    Part.LineSegment(App.Vector(-49, 29.5, 0), App.Vector(-35, 29.5, 0)),  # 9
    Part.LineSegment(App.Vector(37, 13.5, 0), App.Vector(2, 13.5, 0)),  # 10
    Part.LineSegment(App.Vector(2, 13.5, 0), App.Vector(2, 29.5, 0)),  # 11
    Part.LineSegment(App.Vector(2, 29.5, 0), App.Vector(37, 29.5, 0)),  # 12
    Part.LineSegment(App.Vector(37, 29.5, 0), App.Vector(37, 13.5, 0)),  # 13
], False)
sketch4.addConstraint([
    Sketcher.Constraint("Coincident", 0, 2, 1, 1),
    Sketcher.Constraint("Coincident", 1, 2, 2, 1),
    Sketcher.Constraint("Coincident", 2, 2, 3, 1),
    Sketcher.Constraint("Coincident", 3, 2, 0, 1),
    Sketcher.Constraint("Tangent", 4, 2, 5, 2),
    Sketcher.Constraint("Tangent", 5, 1, 6, 1),
    Sketcher.Constraint("Tangent", 6, 2, 7, 2),
    Sketcher.Constraint("Tangent", 7, 1, 8, 1),
    Sketcher.Constraint("Coincident", 8, 2, 9, 1),
    Sketcher.Constraint("Coincident", 9, 2, 4, 1),
    Sketcher.Constraint("Coincident", 10, 2, 11, 1),
    Sketcher.Constraint("Coincident", 11, 2, 12, 1),
    Sketcher.Constraint("Coincident", 12, 2, 13, 1),
    Sketcher.Constraint("Coincident", 13, 2, 10, 1),
    Sketcher.Constraint("Horizontal", 0),
    Sketcher.Constraint("Vertical", 1),
    Sketcher.Constraint("Horizontal", 2),
    Sketcher.Constraint("Vertical", 3),
    Sketcher.Constraint("Vertical", 4),
    Sketcher.Constraint("Horizontal", 6),
    Sketcher.Constraint("Vertical", 8),
    Sketcher.Constraint("Horizontal", 9),
    Sketcher.Constraint("Horizontal", 10),
    Sketcher.Constraint("Vertical", 11),
    Sketcher.Constraint("Horizontal", 12),
    Sketcher.Constraint("Vertical", 13),
    Sketcher.Constraint("Equal", 5, 7),
    Sketcher.Constraint("Horizontal", 9, 2, 11, 2),
    Sketcher.Constraint("Equal", 9, 1),
    Sketcher.Constraint("Radius", 5, Q("3 mm")),
    Sketcher.Constraint("DistanceX", 0, 2, 0, 1, Q("13 mm")),
    Sketcher.Constraint("DistanceX", 6, 2, 6, 1, Q("8 mm")),
    Sketcher.Constraint("DistanceX", 10, 2, 10, 1, Q("35 mm")),
    Sketcher.Constraint("DistanceY", 4, 2, 4, 1, Q("24 mm")),
    Sketcher.Constraint("DistanceY", 11, 1, 11, 2, Q("16 mm")),
    Sketcher.Constraint("DistanceX", 5, 3, -1, 1, Q("38 mm")),
    Sketcher.Constraint("DistanceX", 0, 2, -1, 1, Q("16 mm")),
    Sketcher.Constraint("DistanceX", -1, 1, 10, 2, Q("2 mm")),
    Sketcher.Constraint("DistanceY", 0, 2, 5, 3, Q("1 mm")),
    Sketcher.Constraint("DistanceY", -1, 1, 5, 3, Q("5.5 mm")),
])
pocket1 = body.newObject("PartDesign::Pocket", "Pocket")
pocket1.Profile = sketch4
pocket1.Length = 3
pocket1.Reversed = True

# Sketch on YZ plane
sketch5 = body.newObject("Sketcher::SketchObject", "Sketch004")
sketch5.AttachmentSupport = (doc.getObject("YZ_Plane"), [""])
sketch5.MapMode = "FlatFace"
sketch5.AttachmentOffset = App.Placement(App.Vector(0, 0, 66.5), App.Rotation())
sketch5.addGeometry([
    Part.LineSegment(App.Vector(-45, 29.5, 0), App.Vector(-45, 6.5, 0)),  # 0
    Part.ArcOfCircle(Part.Circle(App.Vector(-43, 6.5, 0), App.Vector(0, 0, 1), 2), math.radians(-180), math.radians(-90)),  # 1
    Part.LineSegment(App.Vector(-43, 4.5, 0), App.Vector(-42, 4.5, 0)),  # 2
    Part.ArcOfCircle(Part.Circle(App.Vector(-42, 6.5, 0), App.Vector(0, 0, 1), 2), math.radians(-90), math.radians(0)),  # 3
    Part.LineSegment(App.Vector(-40, 6.5, 0), App.Vector(-40, 29.5, 0)),  # 4
    Part.LineSegment(App.Vector(-40, 29.5, 0), App.Vector(-45, 29.5, 0)),  # 5
], False)
sketch5.addConstraint([
    Sketcher.Constraint("Tangent", 0, 2, 1, 1),
    Sketcher.Constraint("Tangent", 1, 2, 2, 1),
    Sketcher.Constraint("Tangent", 2, 2, 3, 1),
    Sketcher.Constraint("Tangent", 3, 2, 4, 1),
    Sketcher.Constraint("Coincident", 4, 2, 5, 1),
    Sketcher.Constraint("Coincident", 5, 2, 0, 1),
    Sketcher.Constraint("Vertical", 0),
    Sketcher.Constraint("Horizontal", 2),
    Sketcher.Constraint("Vertical", 4),
    Sketcher.Constraint("Horizontal", 5),
    Sketcher.Constraint("Equal", 1, 3),
    Sketcher.Constraint("Radius", 1, Q("2 mm")),
    Sketcher.Constraint("DistanceX", 2, 1, 2, 2, Q("1 mm")),
    Sketcher.Constraint("DistanceY", 0, 2, 0, 1, Q("23 mm")),
    Sketcher.Constraint("DistanceX", 1, 3, -1, 1, Q("43 mm")),
    Sketcher.Constraint("DistanceY", -1, 1, 1, 3, Q("6.5 mm")),
])
pocket2 = body.newObject("PartDesign::Pocket", "Pocket001")
pocket2.Profile = sketch5
pocket2.Type = "UpToFirst"

doc.recompute()
